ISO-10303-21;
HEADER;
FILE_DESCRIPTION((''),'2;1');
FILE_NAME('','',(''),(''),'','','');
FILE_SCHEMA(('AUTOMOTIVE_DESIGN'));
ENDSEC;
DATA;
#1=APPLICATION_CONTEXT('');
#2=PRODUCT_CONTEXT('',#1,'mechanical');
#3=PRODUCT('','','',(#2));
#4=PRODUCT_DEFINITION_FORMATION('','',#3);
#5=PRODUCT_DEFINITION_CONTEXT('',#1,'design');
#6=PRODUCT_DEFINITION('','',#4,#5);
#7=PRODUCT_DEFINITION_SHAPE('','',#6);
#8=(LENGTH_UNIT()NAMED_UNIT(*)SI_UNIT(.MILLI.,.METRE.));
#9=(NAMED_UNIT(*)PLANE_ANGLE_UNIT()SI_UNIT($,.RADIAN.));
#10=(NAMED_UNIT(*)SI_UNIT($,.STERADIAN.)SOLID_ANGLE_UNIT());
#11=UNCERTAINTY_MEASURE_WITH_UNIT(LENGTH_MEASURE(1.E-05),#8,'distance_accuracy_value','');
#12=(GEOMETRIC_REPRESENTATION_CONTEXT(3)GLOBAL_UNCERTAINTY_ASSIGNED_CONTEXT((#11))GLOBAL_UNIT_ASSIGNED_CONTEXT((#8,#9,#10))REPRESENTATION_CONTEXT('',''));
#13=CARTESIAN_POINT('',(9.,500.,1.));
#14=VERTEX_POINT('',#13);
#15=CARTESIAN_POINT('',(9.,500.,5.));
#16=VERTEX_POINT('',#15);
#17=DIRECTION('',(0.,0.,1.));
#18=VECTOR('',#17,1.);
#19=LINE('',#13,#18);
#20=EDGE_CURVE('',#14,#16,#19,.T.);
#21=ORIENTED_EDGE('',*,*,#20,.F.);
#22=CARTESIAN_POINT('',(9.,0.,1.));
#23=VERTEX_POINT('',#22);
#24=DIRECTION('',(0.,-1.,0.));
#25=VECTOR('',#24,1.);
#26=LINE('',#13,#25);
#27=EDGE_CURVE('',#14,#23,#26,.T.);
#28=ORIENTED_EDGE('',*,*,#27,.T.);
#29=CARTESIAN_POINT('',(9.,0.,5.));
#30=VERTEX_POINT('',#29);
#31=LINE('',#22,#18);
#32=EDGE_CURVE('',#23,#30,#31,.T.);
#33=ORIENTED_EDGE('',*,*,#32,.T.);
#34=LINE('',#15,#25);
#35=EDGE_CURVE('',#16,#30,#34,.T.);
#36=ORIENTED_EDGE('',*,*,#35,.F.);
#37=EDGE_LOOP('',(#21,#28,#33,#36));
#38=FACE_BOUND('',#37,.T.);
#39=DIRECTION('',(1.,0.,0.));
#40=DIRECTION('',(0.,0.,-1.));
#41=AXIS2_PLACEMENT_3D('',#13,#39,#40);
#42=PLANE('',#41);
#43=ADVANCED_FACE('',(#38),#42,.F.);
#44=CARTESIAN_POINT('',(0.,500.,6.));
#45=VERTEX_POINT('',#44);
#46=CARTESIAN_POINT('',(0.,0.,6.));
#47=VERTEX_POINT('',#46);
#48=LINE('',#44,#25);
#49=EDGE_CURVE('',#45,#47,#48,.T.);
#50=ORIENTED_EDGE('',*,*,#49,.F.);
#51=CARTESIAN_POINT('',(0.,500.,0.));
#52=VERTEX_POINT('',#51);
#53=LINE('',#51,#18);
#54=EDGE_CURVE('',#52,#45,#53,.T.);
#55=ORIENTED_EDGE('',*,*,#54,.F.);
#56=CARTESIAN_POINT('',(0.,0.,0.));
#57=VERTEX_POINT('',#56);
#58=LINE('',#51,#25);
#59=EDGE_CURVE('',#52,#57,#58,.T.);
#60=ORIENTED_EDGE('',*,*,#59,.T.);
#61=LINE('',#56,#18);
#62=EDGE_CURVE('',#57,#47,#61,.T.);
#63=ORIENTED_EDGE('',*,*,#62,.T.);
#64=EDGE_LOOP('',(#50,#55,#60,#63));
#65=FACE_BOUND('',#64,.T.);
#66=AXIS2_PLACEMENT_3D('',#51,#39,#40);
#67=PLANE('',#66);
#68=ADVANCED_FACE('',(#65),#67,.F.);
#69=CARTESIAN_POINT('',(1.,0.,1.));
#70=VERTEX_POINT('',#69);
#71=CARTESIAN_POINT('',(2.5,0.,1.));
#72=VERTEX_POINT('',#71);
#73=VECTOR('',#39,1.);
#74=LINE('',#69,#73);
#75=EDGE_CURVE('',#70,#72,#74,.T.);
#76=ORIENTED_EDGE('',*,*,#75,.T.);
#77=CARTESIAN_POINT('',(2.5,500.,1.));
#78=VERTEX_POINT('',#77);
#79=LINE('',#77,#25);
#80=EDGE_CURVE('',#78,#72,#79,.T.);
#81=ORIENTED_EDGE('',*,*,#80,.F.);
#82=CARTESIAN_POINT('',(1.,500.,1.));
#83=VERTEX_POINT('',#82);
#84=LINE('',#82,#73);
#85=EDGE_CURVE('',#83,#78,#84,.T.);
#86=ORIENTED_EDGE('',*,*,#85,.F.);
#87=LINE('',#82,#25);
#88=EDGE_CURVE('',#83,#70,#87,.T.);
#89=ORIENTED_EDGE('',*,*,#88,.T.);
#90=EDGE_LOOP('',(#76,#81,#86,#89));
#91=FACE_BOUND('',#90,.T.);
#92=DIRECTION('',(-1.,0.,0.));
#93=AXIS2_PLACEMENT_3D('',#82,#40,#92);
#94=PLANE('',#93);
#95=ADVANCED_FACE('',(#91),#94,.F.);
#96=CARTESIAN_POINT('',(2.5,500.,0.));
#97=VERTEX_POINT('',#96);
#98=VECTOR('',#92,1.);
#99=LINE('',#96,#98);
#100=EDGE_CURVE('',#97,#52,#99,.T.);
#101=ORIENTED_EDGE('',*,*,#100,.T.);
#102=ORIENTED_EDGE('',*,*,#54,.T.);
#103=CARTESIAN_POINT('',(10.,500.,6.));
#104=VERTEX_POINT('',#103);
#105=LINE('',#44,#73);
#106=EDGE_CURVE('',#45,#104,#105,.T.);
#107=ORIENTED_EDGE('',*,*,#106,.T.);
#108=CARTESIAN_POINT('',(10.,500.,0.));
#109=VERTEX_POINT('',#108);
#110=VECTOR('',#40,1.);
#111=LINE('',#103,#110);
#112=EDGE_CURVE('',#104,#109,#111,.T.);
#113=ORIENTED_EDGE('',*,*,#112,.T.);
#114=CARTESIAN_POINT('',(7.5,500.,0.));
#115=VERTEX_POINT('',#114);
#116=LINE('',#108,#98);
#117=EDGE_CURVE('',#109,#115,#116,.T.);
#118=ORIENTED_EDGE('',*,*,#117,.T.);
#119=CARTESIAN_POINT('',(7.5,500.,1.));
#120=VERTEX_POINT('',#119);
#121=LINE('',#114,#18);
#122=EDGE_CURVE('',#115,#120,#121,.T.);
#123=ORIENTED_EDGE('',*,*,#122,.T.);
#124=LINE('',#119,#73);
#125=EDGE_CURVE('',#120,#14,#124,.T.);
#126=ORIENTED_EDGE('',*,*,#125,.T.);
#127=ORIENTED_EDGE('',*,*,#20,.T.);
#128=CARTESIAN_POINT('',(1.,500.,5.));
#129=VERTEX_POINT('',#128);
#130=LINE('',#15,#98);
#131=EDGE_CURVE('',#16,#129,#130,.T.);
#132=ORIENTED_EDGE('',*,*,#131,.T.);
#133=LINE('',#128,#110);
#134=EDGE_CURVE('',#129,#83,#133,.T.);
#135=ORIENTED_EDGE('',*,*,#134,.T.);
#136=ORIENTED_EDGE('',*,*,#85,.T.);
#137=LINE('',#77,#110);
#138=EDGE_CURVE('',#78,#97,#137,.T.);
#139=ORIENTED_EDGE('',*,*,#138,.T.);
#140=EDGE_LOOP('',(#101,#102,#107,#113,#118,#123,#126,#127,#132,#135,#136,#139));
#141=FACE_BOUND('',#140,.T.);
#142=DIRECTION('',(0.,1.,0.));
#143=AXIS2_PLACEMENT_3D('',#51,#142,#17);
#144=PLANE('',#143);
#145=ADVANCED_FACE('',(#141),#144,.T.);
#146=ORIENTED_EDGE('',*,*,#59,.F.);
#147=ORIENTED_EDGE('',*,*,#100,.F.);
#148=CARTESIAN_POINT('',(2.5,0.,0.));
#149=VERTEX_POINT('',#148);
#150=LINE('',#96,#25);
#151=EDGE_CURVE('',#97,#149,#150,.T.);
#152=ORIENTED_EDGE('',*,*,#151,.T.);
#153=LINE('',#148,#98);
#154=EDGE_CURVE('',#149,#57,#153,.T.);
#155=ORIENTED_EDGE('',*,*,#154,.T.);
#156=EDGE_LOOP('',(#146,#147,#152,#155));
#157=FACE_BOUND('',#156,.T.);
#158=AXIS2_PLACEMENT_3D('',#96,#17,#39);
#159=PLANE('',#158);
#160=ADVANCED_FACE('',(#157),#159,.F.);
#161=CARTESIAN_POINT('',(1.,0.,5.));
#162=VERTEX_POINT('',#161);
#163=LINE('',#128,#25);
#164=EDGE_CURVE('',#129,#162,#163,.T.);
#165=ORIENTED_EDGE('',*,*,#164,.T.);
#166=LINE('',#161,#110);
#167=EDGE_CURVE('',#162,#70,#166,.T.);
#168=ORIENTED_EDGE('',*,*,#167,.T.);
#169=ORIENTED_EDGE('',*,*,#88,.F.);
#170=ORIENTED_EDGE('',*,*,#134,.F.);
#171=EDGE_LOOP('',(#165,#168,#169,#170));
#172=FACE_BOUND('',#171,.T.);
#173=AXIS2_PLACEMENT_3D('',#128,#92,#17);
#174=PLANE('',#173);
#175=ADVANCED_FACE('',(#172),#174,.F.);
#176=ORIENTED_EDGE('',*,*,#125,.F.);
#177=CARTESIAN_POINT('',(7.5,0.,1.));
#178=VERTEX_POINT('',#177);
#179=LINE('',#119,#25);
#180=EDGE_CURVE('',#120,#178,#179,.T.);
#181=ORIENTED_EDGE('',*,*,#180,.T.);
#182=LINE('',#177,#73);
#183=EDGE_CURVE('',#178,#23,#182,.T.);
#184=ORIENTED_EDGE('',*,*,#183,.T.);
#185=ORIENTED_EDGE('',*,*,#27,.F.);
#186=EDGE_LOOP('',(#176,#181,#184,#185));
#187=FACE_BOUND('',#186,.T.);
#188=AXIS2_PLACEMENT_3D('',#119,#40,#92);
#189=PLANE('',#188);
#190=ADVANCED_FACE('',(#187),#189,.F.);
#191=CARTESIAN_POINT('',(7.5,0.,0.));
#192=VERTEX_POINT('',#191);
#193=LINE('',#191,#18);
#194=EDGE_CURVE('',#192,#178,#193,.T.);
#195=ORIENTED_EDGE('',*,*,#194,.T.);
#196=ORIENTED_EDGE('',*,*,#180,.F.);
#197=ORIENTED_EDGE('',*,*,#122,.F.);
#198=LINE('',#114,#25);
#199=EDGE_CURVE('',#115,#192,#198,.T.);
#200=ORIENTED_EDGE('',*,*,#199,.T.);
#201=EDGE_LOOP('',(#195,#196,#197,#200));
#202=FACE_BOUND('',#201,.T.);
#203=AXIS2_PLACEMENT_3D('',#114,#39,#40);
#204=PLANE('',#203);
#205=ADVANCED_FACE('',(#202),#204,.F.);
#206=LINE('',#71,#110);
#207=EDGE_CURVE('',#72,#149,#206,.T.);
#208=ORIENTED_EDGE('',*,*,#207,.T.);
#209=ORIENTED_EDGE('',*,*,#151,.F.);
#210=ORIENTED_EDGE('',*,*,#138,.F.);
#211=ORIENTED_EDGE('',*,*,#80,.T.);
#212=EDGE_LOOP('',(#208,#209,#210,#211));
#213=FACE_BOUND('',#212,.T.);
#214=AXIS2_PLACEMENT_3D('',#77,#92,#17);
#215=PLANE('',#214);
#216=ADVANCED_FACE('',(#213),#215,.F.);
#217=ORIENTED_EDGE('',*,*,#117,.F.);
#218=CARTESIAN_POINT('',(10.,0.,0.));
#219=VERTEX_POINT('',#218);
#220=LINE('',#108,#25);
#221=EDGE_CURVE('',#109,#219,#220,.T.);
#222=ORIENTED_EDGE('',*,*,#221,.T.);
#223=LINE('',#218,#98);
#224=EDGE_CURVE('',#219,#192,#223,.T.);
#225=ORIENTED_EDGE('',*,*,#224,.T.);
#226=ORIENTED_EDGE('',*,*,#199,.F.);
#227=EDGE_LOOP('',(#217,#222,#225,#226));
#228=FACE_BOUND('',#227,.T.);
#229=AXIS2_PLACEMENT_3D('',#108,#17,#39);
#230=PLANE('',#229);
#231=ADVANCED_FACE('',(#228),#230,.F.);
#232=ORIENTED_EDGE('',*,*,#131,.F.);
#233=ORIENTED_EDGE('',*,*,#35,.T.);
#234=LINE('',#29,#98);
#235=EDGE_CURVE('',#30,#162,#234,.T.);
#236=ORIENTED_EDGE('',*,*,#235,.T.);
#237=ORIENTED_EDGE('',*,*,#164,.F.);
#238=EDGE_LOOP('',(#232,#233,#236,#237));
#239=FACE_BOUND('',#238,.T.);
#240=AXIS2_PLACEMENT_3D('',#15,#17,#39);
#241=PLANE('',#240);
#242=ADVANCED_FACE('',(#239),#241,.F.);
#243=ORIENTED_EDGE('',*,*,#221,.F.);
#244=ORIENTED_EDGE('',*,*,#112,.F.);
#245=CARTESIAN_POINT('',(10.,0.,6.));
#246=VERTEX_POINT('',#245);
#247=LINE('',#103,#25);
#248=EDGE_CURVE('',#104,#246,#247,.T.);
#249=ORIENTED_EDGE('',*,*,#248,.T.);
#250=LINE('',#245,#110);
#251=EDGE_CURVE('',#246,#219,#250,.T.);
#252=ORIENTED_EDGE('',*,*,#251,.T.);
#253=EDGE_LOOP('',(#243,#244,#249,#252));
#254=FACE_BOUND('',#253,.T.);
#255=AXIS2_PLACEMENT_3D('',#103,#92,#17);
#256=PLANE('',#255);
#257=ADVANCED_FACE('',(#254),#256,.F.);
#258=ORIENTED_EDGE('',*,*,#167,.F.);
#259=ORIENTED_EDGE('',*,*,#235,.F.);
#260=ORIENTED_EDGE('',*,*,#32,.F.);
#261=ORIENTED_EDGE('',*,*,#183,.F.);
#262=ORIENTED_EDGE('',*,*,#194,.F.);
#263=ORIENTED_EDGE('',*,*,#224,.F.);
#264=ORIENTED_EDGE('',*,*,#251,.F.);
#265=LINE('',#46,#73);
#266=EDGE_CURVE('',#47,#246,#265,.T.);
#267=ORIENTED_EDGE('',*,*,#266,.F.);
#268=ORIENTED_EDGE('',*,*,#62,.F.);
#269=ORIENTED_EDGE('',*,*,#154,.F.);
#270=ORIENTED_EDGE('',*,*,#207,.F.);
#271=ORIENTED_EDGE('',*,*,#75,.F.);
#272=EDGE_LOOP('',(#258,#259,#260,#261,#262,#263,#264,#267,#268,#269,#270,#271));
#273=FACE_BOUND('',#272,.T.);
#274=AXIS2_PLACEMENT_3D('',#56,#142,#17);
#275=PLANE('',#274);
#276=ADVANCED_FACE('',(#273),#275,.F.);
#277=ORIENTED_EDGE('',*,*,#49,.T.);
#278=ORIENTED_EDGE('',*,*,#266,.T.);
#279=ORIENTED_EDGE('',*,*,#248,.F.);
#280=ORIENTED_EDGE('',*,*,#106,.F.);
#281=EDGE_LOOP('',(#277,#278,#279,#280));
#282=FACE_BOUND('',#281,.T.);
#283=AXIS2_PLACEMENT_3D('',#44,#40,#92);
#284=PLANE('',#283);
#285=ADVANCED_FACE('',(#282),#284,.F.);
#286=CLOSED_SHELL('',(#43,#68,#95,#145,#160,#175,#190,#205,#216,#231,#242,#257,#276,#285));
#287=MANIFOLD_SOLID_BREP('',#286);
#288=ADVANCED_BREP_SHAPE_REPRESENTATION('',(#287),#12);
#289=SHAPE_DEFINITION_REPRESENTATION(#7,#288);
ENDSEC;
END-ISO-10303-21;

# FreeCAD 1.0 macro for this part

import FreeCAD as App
import Part
import Sketcher
from FreeCAD import Vector
Q = App.Units.Quantity


def add_polygon(sketch, points):
    """Adds a closed chain of lines whose ends are joined by coincident constraints."""
    first, n = sketch.GeometryCount, len(points)
    for a, b in zip(points, points[1:] + points[:1]):
        sketch.addGeometry(Part.LineSegment(App.Vector(*a, 0), App.Vector(*b, 0)), False)
    for i in range(n):
        sketch.addConstraint(Sketcher.Constraint("Coincident", first + i, 2, first + (i + 1) % n, 1))

doc = App.newDocument("Part")
body = doc.addObject("PartDesign::Body", "Body")

# Sketch on XZ plane
sketch1 = body.newObject("Sketcher::SketchObject", "Sketch")
sketch1.AttachmentSupport = (doc.getObject("XZ_Plane"), [""])
sketch1.MapMode = "FlatFace"
add_polygon(sketch1, [(0, 6), (10, 6), (10, 0), (7.5, 0), (7.5, 1), (9, 1), (9, 5), (1, 5), (1, 1), (2.5, 1), (2.5, 0), (0, 0)])  # lines 0-11
sketch1.addConstraint(Sketcher.Constraint("Horizontal", 0))
sketch1.addConstraint(Sketcher.Constraint("Vertical", 1))
sketch1.addConstraint(Sketcher.Constraint("Horizontal", 2))
sketch1.addConstraint(Sketcher.Constraint("Vertical", 3))
sketch1.addConstraint(Sketcher.Constraint("Horizontal", 4))
sketch1.addConstraint(Sketcher.Constraint("Vertical", 5))
sketch1.addConstraint(Sketcher.Constraint("Horizontal", 6))
sketch1.addConstraint(Sketcher.Constraint("Vertical", 7))
sketch1.addConstraint(Sketcher.Constraint("Horizontal", 8))
sketch1.addConstraint(Sketcher.Constraint("Vertical", 9))
sketch1.addConstraint(Sketcher.Constraint("Horizontal", 10))
sketch1.addConstraint(Sketcher.Constraint("Vertical", 11))
sketch1.addConstraint(Sketcher.Constraint("Coincident", 10, 2, -1, 1))
sketch1.addConstraint(Sketcher.Constraint("PointOnObject", 1, 2, -1))
sketch1.addConstraint(Sketcher.Constraint("Horizontal", 4, 2, 7, 2))
sketch1.addConstraint(Sketcher.Constraint("Equal", 4, 8))
sketch1.addConstraint(Sketcher.Constraint("Equal", 2, 10))
sketch1.addConstraint(Sketcher.Constraint("DistanceX", 0, 1, 0, 2, Q("10 mm")))
sketch1.addConstraint(Sketcher.Constraint("DistanceX", 6, 2, 6, 1, Q("8 mm")))
sketch1.addConstraint(Sketcher.Constraint("DistanceY", 1, 2, 1, 1, Q("6 mm")))
sketch1.addConstraint(Sketcher.Constraint("DistanceY", 3, 1, 3, 2, Q("1 mm")))
sketch1.addConstraint(Sketcher.Constraint("DistanceY", 5, 1, 5, 2, Q("4 mm")))
sketch1.addConstraint(Sketcher.Constraint("DistanceX", 2, 2, 2, 1, Q("2.5 mm")))
pad1 = body.newObject("PartDesign::Pad", "Pad")
pad1.Profile = sketch1
pad1.Length = 500
pad1.Reversed = True

doc.recompute()
